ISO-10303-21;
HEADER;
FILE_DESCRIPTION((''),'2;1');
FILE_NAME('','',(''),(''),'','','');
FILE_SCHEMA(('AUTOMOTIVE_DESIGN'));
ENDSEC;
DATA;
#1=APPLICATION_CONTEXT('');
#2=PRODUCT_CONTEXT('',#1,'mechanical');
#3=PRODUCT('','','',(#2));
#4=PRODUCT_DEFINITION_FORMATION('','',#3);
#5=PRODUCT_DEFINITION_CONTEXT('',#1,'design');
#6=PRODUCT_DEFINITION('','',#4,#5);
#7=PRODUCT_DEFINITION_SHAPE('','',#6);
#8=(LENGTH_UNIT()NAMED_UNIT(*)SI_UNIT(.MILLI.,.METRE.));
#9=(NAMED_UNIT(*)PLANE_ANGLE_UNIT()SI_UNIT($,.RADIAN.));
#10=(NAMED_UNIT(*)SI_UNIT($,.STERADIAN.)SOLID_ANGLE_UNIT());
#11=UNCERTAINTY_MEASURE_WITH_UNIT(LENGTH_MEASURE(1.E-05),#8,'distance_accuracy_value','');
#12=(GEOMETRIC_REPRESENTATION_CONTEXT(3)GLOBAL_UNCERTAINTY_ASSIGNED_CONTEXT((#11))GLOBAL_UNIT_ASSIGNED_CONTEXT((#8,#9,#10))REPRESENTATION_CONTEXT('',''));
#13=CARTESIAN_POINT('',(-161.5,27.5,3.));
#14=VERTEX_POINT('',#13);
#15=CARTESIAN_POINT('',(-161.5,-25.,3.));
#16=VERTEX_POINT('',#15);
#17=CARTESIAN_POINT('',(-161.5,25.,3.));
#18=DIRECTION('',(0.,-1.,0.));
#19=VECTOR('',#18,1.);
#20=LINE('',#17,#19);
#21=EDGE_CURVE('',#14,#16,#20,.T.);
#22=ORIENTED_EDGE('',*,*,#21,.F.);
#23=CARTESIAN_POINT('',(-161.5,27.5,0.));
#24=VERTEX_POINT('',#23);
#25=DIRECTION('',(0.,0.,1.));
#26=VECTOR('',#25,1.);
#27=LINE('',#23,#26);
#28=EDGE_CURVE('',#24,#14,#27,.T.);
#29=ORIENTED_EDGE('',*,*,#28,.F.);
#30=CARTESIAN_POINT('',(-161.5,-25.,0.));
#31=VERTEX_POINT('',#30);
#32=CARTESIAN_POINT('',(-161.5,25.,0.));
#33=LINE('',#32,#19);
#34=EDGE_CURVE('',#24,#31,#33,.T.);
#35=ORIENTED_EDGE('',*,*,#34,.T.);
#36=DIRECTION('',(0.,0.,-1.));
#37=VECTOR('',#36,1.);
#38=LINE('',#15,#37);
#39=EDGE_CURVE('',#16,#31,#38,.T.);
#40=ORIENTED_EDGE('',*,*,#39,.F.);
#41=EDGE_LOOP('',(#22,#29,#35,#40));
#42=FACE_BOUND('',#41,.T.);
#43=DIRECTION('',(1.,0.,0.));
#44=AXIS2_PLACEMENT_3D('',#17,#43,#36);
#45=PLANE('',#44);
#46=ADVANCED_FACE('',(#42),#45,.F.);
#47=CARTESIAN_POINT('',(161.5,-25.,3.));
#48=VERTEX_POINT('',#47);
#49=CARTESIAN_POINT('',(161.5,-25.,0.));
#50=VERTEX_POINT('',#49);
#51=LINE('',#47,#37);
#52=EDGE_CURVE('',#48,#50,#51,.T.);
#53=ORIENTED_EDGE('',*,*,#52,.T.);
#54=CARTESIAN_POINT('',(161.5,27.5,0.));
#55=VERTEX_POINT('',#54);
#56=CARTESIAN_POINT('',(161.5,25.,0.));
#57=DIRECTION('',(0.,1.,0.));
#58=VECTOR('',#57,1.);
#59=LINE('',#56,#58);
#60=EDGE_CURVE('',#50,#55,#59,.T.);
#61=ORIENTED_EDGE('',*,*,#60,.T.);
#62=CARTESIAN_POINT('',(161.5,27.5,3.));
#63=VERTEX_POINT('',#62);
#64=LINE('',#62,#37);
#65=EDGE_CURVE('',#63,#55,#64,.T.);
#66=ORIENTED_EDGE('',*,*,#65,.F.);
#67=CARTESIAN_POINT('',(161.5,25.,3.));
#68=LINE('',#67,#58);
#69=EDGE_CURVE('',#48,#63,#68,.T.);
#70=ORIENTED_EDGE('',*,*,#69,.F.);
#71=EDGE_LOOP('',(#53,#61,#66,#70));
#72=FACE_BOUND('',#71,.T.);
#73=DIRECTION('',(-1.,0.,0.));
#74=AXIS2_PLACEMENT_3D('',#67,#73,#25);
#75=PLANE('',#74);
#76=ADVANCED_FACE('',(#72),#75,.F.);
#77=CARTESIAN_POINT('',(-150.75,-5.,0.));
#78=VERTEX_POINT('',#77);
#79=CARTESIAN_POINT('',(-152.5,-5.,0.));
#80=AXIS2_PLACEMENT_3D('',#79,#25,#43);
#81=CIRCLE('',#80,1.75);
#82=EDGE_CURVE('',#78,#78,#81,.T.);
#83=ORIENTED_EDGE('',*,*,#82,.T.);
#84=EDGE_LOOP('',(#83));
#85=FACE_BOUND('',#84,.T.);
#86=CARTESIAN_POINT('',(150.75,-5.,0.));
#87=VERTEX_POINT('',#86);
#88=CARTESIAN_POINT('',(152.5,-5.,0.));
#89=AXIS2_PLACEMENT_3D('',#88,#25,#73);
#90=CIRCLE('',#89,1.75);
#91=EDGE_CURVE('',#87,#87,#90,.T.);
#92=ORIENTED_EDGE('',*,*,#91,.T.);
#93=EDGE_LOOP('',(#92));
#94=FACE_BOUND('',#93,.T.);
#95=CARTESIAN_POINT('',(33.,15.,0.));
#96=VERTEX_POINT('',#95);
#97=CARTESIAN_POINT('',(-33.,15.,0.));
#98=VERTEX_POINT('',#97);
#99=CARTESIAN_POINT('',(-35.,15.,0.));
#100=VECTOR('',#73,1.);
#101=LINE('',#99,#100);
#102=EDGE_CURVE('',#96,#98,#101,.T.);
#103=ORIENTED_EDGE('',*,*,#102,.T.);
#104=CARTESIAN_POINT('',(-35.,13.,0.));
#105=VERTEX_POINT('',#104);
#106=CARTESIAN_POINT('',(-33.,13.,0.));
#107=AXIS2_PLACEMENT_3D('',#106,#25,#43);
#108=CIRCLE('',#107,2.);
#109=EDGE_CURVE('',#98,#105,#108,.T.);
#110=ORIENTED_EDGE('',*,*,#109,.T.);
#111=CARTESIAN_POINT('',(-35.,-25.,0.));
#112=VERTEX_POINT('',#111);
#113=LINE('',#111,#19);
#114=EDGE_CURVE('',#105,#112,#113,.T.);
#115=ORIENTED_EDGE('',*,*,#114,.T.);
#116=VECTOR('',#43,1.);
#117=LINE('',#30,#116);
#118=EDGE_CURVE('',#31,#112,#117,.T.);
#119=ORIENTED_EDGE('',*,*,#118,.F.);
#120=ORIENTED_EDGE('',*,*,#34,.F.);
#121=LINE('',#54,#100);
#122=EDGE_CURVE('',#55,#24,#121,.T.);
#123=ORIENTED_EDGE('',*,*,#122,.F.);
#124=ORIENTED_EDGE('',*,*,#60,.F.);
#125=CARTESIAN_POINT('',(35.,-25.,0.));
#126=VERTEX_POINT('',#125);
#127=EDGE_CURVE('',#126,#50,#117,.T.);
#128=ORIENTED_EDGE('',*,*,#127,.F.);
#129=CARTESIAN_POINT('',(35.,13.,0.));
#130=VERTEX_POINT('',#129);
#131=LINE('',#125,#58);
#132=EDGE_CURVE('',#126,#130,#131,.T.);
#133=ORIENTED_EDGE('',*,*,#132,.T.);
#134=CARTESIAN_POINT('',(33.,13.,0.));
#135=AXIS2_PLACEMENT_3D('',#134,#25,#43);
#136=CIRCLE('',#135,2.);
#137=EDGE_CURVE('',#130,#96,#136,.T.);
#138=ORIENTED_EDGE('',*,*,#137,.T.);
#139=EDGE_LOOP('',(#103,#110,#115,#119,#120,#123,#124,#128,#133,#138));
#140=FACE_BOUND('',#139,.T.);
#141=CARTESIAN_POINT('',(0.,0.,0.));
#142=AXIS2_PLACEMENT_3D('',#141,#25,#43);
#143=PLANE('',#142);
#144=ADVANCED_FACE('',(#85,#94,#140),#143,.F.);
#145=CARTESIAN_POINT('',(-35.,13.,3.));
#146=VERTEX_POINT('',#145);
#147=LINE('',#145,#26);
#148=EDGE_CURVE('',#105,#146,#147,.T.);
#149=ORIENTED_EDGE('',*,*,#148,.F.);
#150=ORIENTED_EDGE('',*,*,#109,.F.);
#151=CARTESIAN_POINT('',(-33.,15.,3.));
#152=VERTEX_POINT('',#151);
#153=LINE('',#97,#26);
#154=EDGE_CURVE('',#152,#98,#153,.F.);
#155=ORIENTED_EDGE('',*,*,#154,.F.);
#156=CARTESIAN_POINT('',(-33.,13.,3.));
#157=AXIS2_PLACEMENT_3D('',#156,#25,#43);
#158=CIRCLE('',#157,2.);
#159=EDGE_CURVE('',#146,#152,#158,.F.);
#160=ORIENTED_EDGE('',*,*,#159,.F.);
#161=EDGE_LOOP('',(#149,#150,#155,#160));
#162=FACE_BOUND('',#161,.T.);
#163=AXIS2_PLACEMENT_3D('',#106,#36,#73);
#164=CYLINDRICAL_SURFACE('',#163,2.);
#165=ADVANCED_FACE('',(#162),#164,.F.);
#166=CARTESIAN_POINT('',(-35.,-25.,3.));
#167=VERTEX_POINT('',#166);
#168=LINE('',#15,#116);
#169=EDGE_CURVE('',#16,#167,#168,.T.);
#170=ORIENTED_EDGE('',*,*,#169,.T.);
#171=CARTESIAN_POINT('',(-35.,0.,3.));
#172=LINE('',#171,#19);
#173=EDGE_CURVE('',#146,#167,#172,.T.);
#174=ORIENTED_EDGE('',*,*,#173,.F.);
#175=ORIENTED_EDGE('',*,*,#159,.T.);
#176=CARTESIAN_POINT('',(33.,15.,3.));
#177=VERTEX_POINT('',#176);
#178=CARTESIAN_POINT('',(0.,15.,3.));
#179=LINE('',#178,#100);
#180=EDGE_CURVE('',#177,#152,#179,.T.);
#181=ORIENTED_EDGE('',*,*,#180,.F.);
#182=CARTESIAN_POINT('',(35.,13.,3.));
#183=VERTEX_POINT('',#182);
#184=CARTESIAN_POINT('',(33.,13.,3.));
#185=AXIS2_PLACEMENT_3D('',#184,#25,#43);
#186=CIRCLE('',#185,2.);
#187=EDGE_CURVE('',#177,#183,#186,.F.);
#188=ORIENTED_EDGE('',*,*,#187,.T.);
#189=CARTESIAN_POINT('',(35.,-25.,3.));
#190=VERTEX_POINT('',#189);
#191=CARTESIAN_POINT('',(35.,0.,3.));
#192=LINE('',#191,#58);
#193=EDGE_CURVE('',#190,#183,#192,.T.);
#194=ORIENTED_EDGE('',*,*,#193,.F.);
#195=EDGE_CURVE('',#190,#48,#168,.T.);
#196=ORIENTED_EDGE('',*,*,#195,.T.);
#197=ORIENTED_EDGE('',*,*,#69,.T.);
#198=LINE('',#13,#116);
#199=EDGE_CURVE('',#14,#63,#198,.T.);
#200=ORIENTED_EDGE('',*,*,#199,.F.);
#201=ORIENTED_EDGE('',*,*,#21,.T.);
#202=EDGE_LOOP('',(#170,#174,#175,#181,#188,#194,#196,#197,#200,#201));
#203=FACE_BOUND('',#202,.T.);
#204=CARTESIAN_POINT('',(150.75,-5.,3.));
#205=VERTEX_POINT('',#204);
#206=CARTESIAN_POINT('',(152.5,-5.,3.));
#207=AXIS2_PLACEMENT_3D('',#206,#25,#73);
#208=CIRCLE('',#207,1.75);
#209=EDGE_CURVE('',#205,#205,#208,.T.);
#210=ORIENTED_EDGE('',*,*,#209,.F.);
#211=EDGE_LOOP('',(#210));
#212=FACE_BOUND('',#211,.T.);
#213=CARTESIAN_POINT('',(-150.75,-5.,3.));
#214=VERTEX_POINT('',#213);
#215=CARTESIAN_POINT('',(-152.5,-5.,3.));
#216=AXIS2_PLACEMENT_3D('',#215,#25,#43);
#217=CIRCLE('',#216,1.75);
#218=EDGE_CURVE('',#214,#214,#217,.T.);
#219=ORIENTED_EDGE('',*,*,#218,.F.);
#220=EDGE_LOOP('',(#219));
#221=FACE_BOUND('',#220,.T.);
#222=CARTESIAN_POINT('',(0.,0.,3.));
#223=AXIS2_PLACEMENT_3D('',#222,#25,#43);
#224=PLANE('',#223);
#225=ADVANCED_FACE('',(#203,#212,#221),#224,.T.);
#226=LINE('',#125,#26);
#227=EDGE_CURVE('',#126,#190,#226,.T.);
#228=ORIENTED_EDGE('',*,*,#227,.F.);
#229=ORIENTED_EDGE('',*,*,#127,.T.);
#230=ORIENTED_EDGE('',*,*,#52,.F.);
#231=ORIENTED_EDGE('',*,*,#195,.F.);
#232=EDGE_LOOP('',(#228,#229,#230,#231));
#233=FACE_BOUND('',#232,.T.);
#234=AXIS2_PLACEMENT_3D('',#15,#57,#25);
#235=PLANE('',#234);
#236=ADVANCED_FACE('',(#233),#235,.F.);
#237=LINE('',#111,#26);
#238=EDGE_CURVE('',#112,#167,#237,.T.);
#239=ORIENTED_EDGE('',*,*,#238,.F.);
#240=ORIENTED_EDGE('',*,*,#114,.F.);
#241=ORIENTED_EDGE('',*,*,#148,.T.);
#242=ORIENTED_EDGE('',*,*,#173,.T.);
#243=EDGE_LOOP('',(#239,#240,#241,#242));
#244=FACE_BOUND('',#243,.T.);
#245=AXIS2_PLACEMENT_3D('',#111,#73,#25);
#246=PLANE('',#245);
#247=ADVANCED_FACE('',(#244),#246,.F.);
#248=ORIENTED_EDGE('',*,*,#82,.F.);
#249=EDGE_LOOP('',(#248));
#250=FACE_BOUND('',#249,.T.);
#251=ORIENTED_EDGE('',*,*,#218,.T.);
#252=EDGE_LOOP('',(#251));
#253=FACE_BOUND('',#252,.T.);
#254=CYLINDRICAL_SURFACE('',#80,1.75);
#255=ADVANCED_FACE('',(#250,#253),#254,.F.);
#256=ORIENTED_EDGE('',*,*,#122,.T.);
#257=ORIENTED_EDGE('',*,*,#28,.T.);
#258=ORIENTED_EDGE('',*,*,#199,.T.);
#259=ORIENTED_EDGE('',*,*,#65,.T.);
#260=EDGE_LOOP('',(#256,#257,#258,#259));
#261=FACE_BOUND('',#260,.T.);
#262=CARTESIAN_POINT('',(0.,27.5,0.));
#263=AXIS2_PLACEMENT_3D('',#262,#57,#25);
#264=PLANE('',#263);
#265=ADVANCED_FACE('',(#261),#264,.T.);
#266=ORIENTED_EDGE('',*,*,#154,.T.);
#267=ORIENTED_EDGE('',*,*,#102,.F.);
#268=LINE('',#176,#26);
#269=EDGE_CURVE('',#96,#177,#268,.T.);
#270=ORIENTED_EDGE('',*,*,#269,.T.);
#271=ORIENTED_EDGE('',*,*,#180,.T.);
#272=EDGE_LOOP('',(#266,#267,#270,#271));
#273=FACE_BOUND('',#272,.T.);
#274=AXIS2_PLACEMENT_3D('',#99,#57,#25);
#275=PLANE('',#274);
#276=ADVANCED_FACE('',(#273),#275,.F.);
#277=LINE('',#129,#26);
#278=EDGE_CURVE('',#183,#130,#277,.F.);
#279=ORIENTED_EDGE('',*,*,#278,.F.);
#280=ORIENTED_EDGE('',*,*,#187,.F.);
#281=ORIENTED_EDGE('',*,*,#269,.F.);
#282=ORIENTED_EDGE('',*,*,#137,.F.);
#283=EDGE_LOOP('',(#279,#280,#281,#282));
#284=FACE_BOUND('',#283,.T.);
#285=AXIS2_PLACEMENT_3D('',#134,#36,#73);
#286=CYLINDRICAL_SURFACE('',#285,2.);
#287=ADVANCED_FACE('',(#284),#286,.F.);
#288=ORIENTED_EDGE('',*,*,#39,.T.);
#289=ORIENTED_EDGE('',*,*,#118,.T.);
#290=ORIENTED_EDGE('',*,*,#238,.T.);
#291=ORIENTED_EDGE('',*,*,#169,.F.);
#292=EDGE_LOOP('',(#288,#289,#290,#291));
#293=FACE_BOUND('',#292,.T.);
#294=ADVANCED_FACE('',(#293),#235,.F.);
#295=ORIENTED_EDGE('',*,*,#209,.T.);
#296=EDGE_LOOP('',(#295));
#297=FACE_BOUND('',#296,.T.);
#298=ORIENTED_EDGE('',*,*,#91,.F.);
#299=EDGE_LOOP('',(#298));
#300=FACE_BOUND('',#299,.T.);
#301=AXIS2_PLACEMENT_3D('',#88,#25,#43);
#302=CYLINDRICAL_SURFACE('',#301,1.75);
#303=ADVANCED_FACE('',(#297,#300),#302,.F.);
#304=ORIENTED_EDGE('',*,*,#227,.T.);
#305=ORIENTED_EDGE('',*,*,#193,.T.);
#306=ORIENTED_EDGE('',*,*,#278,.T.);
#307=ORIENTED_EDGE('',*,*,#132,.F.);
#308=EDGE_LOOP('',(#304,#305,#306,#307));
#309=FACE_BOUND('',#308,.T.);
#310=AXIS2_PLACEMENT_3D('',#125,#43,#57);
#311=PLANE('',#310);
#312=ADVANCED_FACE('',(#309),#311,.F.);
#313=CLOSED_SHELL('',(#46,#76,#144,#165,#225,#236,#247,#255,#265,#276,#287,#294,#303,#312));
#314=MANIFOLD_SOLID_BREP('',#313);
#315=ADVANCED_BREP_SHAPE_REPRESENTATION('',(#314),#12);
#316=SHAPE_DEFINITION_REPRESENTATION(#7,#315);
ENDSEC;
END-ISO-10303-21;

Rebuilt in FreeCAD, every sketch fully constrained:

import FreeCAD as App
import Part
import Sketcher

V = App.Vector
Q = App.Units.Quantity


def edges_at(feature, points):
    """Names of the edges that pass closest to the given points."""
    edges = feature.Shape.Edges
    near = lambda p: min(range(len(edges)), key=lambda i: edges[i].distToShape(Part.Vertex(*p))[0])
    return sorted({f"Edge{near(p) + 1}" for p in points})

doc = App.newDocument("Part")
params = doc.addObject("Spreadsheet::Sheet", "Params")
for row, (alias, value) in enumerate([
    ("sketch1_width", "323 mm"),
    ("sketch1_height", "50 mm"),
    ("pad1_length", "3 mm"),
    ("sketch2_width", "70 mm"),
    ("sketch2_height", "40 mm"),
    ("fillet_radius", "2 mm"),
    ("sketch3_width", "323 mm"),
    ("sketch3_height", "3 mm"),
    ("pad2_length", "2.5 mm"),
    ("sketch4_diameter", "3.5 mm"),
], start=1):
    params.set(f"A{row}", alias)
    params.set(f"B{row}", "=" + value)
    params.setAlias(f"B{row}", alias)

body = doc.addObject("PartDesign::Body", "Body")

sketch1 = doc.addObject("Sketcher::SketchObject", "Sketch")
body.addObject(sketch1)
sketch1.AttachmentSupport = (doc.XY_Plane, [""])
sketch1.MapMode = "FlatFace"
sketch1.addGeometry([
    Part.LineSegment(V(-162, 25, 0), V(-162, -25, 0)),
    Part.LineSegment(V(-162, -25, 0), V(162, -25, 0)),
    Part.LineSegment(V(162, -25, 0), V(162, 25, 0)),
    Part.LineSegment(V(162, 25, 0), V(-162, 25, 0)),
], False)
sketch1.addConstraint([
    Sketcher.Constraint("Coincident", 0, 2, 1, 1),
    Sketcher.Constraint("Coincident", 1, 2, 2, 1),
    Sketcher.Constraint("Coincident", 2, 2, 3, 1),
    Sketcher.Constraint("Coincident", 3, 2, 0, 1),
    Sketcher.Constraint("Vertical", 0),
    Sketcher.Constraint("Horizontal", 1),
    Sketcher.Constraint("Vertical", 2),
    Sketcher.Constraint("Horizontal", 3),
    Sketcher.Constraint("Symmetric", 0, 2, 2, 2, -1, 1),
    Sketcher.Constraint("DistanceX", 1, 1, 1, 2, Q("323 mm")),
    Sketcher.Constraint("DistanceY", 0, 2, 0, 1, Q("50 mm")),
])
sketch1.setExpression("Constraints[9]", "Params.sketch1_width")
sketch1.setExpression("Constraints[10]", "Params.sketch1_height")
pad1 = doc.addObject("PartDesign::Pad", "Pad")
body.addObject(pad1)
pad1.Profile = sketch1
pad1.setExpression("Length", "Params.pad1_length")

sketch2 = doc.addObject("Sketcher::SketchObject", "Sketch001")
body.addObject(sketch2)
sketch2.AttachmentSupport = (doc.XY_Plane, [""])
sketch2.MapMode = "FlatFace"
sketch2.AttachmentOffset = App.Placement(V(0, 0, 3), App.Rotation())
sketch2.addGeometry([
    Part.LineSegment(V(-35, 15, 0), V(-35, -25, 0)),
    Part.LineSegment(V(-35, -25, 0), V(35, -25, 0)),
    Part.LineSegment(V(35, -25, 0), V(35, 15, 0)),
    Part.LineSegment(V(35, 15, 0), V(-35, 15, 0)),
], False)
sketch2.addConstraint([
    Sketcher.Constraint("Coincident", 0, 2, 1, 1),
    Sketcher.Constraint("Coincident", 1, 2, 2, 1),
    Sketcher.Constraint("Coincident", 2, 2, 3, 1),
    Sketcher.Constraint("Coincident", 3, 2, 0, 1),
    Sketcher.Constraint("Vertical", 0),
    Sketcher.Constraint("Horizontal", 1),
    Sketcher.Constraint("Vertical", 2),
    Sketcher.Constraint("Horizontal", 3),
    Sketcher.Constraint("DistanceX", 1, 1, 1, 2, Q("70 mm")),
    Sketcher.Constraint("DistanceY", 0, 2, 0, 1, Q("40 mm")),
    Sketcher.Constraint("DistanceX", 0, 2, -1, 1, Q("35 mm")),
    Sketcher.Constraint("DistanceY", 0, 2, -1, 1, Q("25 mm")),
])
sketch2.setExpression("Constraints[8]", "Params.sketch2_width")
sketch2.setExpression("Constraints[9]", "Params.sketch2_height")
pocket1 = doc.addObject("PartDesign::Pocket", "Pocket")
body.addObject(pocket1)
pocket1.Profile = sketch2
pocket1.Type = "ThroughAll"
pocket1.Midplane = True
doc.recompute()

fillet = doc.addObject("PartDesign::Fillet", "Fillet")
body.addObject(fillet)
fillet.Base = (pocket1, edges_at(pocket1, [(-35, 15, 1.5), (35, 15, 1.5)]))
fillet.setExpression("Radius", "Params.fillet_radius")

sketch3 = doc.addObject("Sketcher::SketchObject", "Sketch002")
body.addObject(sketch3)
sketch3.AttachmentSupport = (doc.XZ_Plane, [""])
sketch3.MapMode = "FlatFace"
sketch3.AttachmentOffset = App.Placement(V(0, 0, -25), App.Rotation())
sketch3.addGeometry([
    Part.LineSegment(V(-161.5, 0, 0), V(-161.5, 3, 0)),
    Part.LineSegment(V(-161.5, 3, 0), V(161.5, 3, 0)),
    Part.LineSegment(V(161.5, 3, 0), V(161.5, 0, 0)),
    Part.LineSegment(V(161.5, 0, 0), V(-161.5, 0, 0)),
], False)
sketch3.addConstraint([
    Sketcher.Constraint("Coincident", 0, 2, 1, 1),
    Sketcher.Constraint("Coincident", 1, 2, 2, 1),
    Sketcher.Constraint("Coincident", 2, 2, 3, 1),
    Sketcher.Constraint("Coincident", 3, 2, 0, 1),
    Sketcher.Constraint("Vertical", 0),
    Sketcher.Constraint("Horizontal", 1),
    Sketcher.Constraint("Vertical", 2),
    Sketcher.Constraint("Horizontal", 3),
    Sketcher.Constraint("Symmetric", 2, 2, 3, 2, -1, 1),
    Sketcher.Constraint("DistanceX", 1, 1, 1, 2, Q("323 mm")),
    Sketcher.Constraint("DistanceY", 0, 1, 0, 2, Q("3 mm")),
])
sketch3.setExpression("Constraints[9]", "Params.sketch3_width")
sketch3.setExpression("Constraints[10]", "Params.sketch3_height")
pad2 = doc.addObject("PartDesign::Pad", "Pad001")
body.addObject(pad2)
pad2.Profile = sketch3
pad2.setExpression("Length", "Params.pad2_length")
pad2.Reversed = True

sketch4 = doc.addObject("Sketcher::SketchObject", "Sketch003")
body.addObject(sketch4)
sketch4.AttachmentSupport = (doc.XY_Plane, [""])
sketch4.MapMode = "FlatFace"
sketch4.AttachmentOffset = App.Placement(V(0, 0, 3), App.Rotation())
sketch4.addGeometry([
    Part.Circle(V(-152.5, -5, 0), V(0, 0, 1), 1.8),
    Part.Circle(V(152.5, -5, 0), V(0, 0, 1), 1.8),
], False)
sketch4.addConstraint([
    Sketcher.Constraint("Equal", 0, 1),
    Sketcher.Constraint("Symmetric", 0, 3, 1, 3, -2),
    Sketcher.Constraint("Diameter", 0, Q("3.5 mm")),
    Sketcher.Constraint("DistanceY", 0, 3, -1, 1, Q("5 mm")),
    Sketcher.Constraint("DistanceX", 0, 3, 1, 3, Q("305 mm")),
])
sketch4.setExpression("Constraints[2]", "Params.sketch4_diameter")
pocket2 = doc.addObject("PartDesign::Pocket", "Pocket001")
body.addObject(pocket2)
pocket2.Profile = sketch4
pocket2.Type = "ThroughAll"

doc.recompute()
